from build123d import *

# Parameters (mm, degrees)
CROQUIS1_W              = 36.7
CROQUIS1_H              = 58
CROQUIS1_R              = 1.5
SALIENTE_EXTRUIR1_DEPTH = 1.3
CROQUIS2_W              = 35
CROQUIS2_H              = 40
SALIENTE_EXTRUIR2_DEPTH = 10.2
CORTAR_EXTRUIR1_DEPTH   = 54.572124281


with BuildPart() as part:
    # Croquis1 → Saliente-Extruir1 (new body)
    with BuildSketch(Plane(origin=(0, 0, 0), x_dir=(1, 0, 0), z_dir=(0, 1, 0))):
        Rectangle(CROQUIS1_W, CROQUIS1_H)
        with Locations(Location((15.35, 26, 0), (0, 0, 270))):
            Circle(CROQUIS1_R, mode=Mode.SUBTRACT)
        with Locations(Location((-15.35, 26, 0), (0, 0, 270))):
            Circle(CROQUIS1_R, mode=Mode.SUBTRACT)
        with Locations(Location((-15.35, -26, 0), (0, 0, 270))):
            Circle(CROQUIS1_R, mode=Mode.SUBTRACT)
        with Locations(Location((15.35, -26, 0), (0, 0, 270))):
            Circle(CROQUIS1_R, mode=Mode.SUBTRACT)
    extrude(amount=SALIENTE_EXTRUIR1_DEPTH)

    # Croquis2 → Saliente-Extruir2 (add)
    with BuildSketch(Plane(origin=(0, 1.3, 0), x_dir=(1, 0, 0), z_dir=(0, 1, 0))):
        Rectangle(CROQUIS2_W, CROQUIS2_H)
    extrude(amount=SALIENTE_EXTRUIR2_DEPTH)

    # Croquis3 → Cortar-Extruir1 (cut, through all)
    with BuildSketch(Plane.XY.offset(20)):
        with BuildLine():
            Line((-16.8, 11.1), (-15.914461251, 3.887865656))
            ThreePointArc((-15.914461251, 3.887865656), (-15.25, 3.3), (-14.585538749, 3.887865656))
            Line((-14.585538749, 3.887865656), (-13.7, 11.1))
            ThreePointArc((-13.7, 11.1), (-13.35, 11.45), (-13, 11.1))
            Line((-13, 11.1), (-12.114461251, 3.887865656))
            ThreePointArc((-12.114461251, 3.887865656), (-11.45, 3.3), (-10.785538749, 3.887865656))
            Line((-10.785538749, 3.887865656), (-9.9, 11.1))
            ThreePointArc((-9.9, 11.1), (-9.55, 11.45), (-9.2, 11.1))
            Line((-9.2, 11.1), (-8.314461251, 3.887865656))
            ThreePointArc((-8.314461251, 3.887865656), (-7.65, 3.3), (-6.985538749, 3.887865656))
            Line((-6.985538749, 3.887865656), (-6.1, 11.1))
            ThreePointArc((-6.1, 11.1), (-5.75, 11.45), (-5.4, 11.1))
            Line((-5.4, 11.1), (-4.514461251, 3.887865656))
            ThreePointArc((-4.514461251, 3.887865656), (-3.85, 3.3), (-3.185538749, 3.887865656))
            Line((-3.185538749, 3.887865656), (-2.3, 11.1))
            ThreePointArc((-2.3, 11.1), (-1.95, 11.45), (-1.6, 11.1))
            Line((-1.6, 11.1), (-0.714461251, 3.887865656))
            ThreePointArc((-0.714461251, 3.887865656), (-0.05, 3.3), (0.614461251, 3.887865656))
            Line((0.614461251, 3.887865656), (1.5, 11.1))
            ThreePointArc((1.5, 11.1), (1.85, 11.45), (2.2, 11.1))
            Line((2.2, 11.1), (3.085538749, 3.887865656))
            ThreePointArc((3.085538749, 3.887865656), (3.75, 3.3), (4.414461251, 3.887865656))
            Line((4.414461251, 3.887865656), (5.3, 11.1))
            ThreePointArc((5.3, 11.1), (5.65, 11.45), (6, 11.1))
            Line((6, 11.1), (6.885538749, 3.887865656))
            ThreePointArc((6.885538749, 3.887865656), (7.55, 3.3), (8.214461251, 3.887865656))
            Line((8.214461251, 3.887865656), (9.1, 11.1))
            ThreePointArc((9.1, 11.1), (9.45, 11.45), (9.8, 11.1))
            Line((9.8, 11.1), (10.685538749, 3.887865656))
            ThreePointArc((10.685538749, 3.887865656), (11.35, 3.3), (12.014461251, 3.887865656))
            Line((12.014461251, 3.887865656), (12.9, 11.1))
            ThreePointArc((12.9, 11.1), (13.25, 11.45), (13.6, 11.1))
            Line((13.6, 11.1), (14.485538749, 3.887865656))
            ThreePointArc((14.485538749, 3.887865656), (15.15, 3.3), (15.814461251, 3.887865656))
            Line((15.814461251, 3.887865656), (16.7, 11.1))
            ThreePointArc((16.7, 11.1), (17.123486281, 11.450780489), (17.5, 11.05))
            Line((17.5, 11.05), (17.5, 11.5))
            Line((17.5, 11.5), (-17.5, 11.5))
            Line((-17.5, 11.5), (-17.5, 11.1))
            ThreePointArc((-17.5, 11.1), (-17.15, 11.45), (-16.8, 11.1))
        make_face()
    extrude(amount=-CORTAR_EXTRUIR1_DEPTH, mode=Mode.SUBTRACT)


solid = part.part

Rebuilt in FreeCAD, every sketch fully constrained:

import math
import FreeCAD as App
import Part
import Sketcher
Q = App.Units.Quantity


def add_polygon(sketch, points):
    """Adds a closed chain of lines whose ends are joined by coincident constraints."""
    first, n = sketch.GeometryCount, len(points)
    for a, b in zip(points, points[1:] + points[:1]):
        sketch.addGeometry(Part.LineSegment(App.Vector(*a, 0), App.Vector(*b, 0)), False)
    for i in range(n):
        sketch.addConstraint(Sketcher.Constraint("Coincident", first + i, 2, first + (i + 1) % n, 1))

doc = App.newDocument("Part")
params = doc.addObject("Spreadsheet::Sheet", "Params")
for row, (alias, value) in enumerate([
    ("sketch1_diameter", "3 mm"),
    ("sketch1_height", "58 mm"),
    ("sketch1_width", "36.7 mm"),
    ("pad1_length", "1.3 mm"),
    ("sketch2_width", "35 mm"),
    ("sketch2_height", "40 mm"),
    ("pad2_length", "10.2 mm"),
    ("sketch3_width", "35 mm"),
    ("sketch3_radius", "0.35 mm"),
    ("sketch3_height", "0.4 mm"),
    ("sketch3_height2", "0.45 mm"),
], start=1):
    params.set(f"A{row}", alias)
    params.set(f"B{row}", "=" + value)
    params.setAlias(f"B{row}", alias)

body = doc.addObject("PartDesign::Body", "Body")

# Sketch on XZ plane
sketch1 = doc.addObject("Sketcher::SketchObject", "Sketch")
body.addObject(sketch1)
sketch1.AttachmentSupport = (doc.XZ_Plane, [""])
sketch1.MapMode = "FlatFace"
add_polygon(sketch1, [(-18.35, -29), (-18.35, 29), (18.35, 29), (18.35, -29)])  # lines 0-3
sketch1.addGeometry(Part.Circle(App.Vector(-15.35, 26, 0), App.Vector(0, 0, 1), 1.5), False)  # 4
sketch1.addGeometry(Part.Circle(App.Vector(15.35, 26, 0), App.Vector(0, 0, 1), 1.5), False)  # 5
sketch1.addGeometry(Part.Circle(App.Vector(-15.35, -26, 0), App.Vector(0, 0, 1), 1.5), False)  # 6
sketch1.addGeometry(Part.Circle(App.Vector(15.35, -26, 0), App.Vector(0, 0, 1), 1.5), False)  # 7
sketch1.addConstraint([
    Sketcher.Constraint("Vertical", 0),
    Sketcher.Constraint("Horizontal", 1),
    Sketcher.Constraint("Vertical", 2),
    Sketcher.Constraint("Horizontal", 3),
    Sketcher.Constraint("Equal", 4, 5),
    Sketcher.Constraint("Equal", 5, 6),
    Sketcher.Constraint("Equal", 6, 7),
    Sketcher.Constraint("Symmetric", 5, 3, 6, 3, -1, 1),
    Sketcher.Constraint("Symmetric", 4, 3, 7, 3, -1, 1),
    Sketcher.Constraint("Symmetric", 0, 2, 2, 2, -1, 1),
    Sketcher.Constraint("Symmetric", 4, 3, 5, 3, -2),
    Sketcher.Constraint("Diameter", 4, 3.0),
    Sketcher.Constraint("DistanceY", 0, 1, 0, 2, 58.0),
    Sketcher.Constraint("DistanceX", 1, 1, 1, 2, 36.7),
    Sketcher.Constraint("DistanceY", -1, 1, 4, 3, 26.0),
    Sketcher.Constraint("DistanceX", 0, 2, 4, 3, 3.0),
])
sketch1.setExpression("Constraints[15]", "Params.sketch1_diameter")
sketch1.setExpression("Constraints[16]", "Params.sketch1_height")
sketch1.setExpression("Constraints[17]", "Params.sketch1_width")
pad1 = doc.addObject("PartDesign::Pad", "Pad")
body.addObject(pad1)
pad1.Profile = sketch1
pad1.setExpression("Length", "Params.pad1_length")
pad1.Reversed = True

# Sketch on XZ plane
sketch2 = doc.addObject("Sketcher::SketchObject", "Sketch001")
body.addObject(sketch2)
sketch2.AttachmentSupport = (doc.XZ_Plane, [""])
sketch2.MapMode = "FlatFace"
sketch2.AttachmentOffset = App.Placement(App.Vector(0, 0, -1.3), App.Rotation())
add_polygon(sketch2, [(-17.5, -20), (-17.5, 20), (17.5, 20), (17.5, -20)])  # lines 0-3
sketch2.addConstraint([
    Sketcher.Constraint("Vertical", 0),
    Sketcher.Constraint("Horizontal", 1),
    Sketcher.Constraint("Vertical", 2),
    Sketcher.Constraint("Horizontal", 3),
    Sketcher.Constraint("Symmetric", 0, 2, 2, 2, -1, 1),
    Sketcher.Constraint("DistanceX", 1, 1, 1, 2, 35.0),
    Sketcher.Constraint("DistanceY", 0, 1, 0, 2, 40.0),
])
sketch2.setExpression("Constraints[9]", "Params.sketch2_width")
sketch2.setExpression("Constraints[10]", "Params.sketch2_height")
pad2 = doc.addObject("PartDesign::Pad", "Pad001")
body.addObject(pad2)
pad2.Profile = sketch2
pad2.setExpression("Length", "Params.pad2_length")
pad2.Reversed = True

# Sketch on XY plane
sketch3 = doc.addObject("Sketcher::SketchObject", "Sketch002")
body.addObject(sketch3)
sketch3.AttachmentSupport = (doc.XY_Plane, [""])
sketch3.MapMode = "FlatFace"
sketch3.AttachmentOffset = App.Placement(App.Vector(0, 0, 20), App.Rotation())
sketch3.addGeometry([
    Part.LineSegment(App.Vector(-16.8, 11.1, 0), App.Vector(-15.914461, 3.887866, 0)),  # 0
    Part.ArcOfCircle(Part.Circle(App.Vector(-15.25, 3.969451, 0), App.Vector(0, 0, 1), 0.669451), math.radians(-173), math.radians(-7)),  # 1
    Part.LineSegment(App.Vector(-14.585539, 3.887866, 0), App.Vector(-13.7, 11.1, 0)),  # 2
    Part.ArcOfCircle(Part.Circle(App.Vector(-13.35, 11.1, 0), App.Vector(0, 0, 1), 0.35), math.radians(0), math.radians(180)),  # 3
    Part.LineSegment(App.Vector(-13, 11.1, 0), App.Vector(-12.114461, 3.887866, 0)),  # 4
    Part.ArcOfCircle(Part.Circle(App.Vector(-11.45, 3.969451, 0), App.Vector(0, 0, 1), 0.669451), math.radians(-173), math.radians(-7)),  # 5
    Part.LineSegment(App.Vector(-10.785539, 3.887866, 0), App.Vector(-9.9, 11.1, 0)),  # 6
    Part.ArcOfCircle(Part.Circle(App.Vector(-9.55, 11.1, 0), App.Vector(0, 0, 1), 0.35), math.radians(0), math.radians(180)),  # 7
    Part.LineSegment(App.Vector(-9.2, 11.1, 0), App.Vector(-8.314461, 3.887866, 0)),  # 8
    Part.ArcOfCircle(Part.Circle(App.Vector(-7.65, 3.969451, 0), App.Vector(0, 0, 1), 0.669451), math.radians(-173), math.radians(-7)),  # 9
    Part.LineSegment(App.Vector(-6.985539, 3.887866, 0), App.Vector(-6.1, 11.1, 0)),  # 10
    Part.ArcOfCircle(Part.Circle(App.Vector(-5.75, 11.1, 0), App.Vector(0, 0, 1), 0.35), math.radians(0), math.radians(180)),  # 11
    Part.LineSegment(App.Vector(-5.4, 11.1, 0), App.Vector(-4.514461, 3.887866, 0)),  # 12
    Part.ArcOfCircle(Part.Circle(App.Vector(-3.85, 3.969451, 0), App.Vector(0, 0, 1), 0.669451), math.radians(-173), math.radians(-7)),  # 13
    Part.LineSegment(App.Vector(-3.185539, 3.887866, 0), App.Vector(-2.3, 11.1, 0)),  # 14
    Part.ArcOfCircle(Part.Circle(App.Vector(-1.95, 11.1, 0), App.Vector(0, 0, 1), 0.35), math.radians(0), math.radians(180)),  # 15
    Part.LineSegment(App.Vector(-1.6, 11.1, 0), App.Vector(-0.714461, 3.887866, 0)),  # 16
    Part.ArcOfCircle(Part.Circle(App.Vector(-0.05, 3.969451, 0), App.Vector(0, 0, 1), 0.669451), math.radians(-173), math.radians(-7)),  # 17
    Part.LineSegment(App.Vector(0.614461, 3.887866, 0), App.Vector(1.5, 11.1, 0)),  # 18
    Part.ArcOfCircle(Part.Circle(App.Vector(1.85, 11.1, 0), App.Vector(0, 0, 1), 0.35), math.radians(0), math.radians(180)),  # 19
    Part.LineSegment(App.Vector(2.2, 11.1, 0), App.Vector(3.085539, 3.887866, 0)),  # 20
    Part.ArcOfCircle(Part.Circle(App.Vector(3.75, 3.969451, 0), App.Vector(0, 0, 1), 0.669451), math.radians(-173), math.radians(-7)),  # 21
    Part.LineSegment(App.Vector(4.414461, 3.887866, 0), App.Vector(5.3, 11.1, 0)),  # 22
    Part.ArcOfCircle(Part.Circle(App.Vector(5.65, 11.1, 0), App.Vector(0, 0, 1), 0.35), math.radians(0), math.radians(180)),  # 23
    Part.LineSegment(App.Vector(6, 11.1, 0), App.Vector(6.885539, 3.887866, 0)),  # 24
    Part.ArcOfCircle(Part.Circle(App.Vector(7.55, 3.969451, 0), App.Vector(0, 0, 1), 0.669451), math.radians(-173), math.radians(-7)),  # 25
    Part.LineSegment(App.Vector(8.214461, 3.887866, 0), App.Vector(9.1, 11.1, 0)),  # 26
    Part.ArcOfCircle(Part.Circle(App.Vector(9.45, 11.1, 0), App.Vector(0, 0, 1), 0.35), math.radians(0), math.radians(180)),  # 27
    Part.LineSegment(App.Vector(9.8, 11.1, 0), App.Vector(10.685539, 3.887866, 0)),  # 28
    Part.ArcOfCircle(Part.Circle(App.Vector(11.35, 3.969451, 0), App.Vector(0, 0, 1), 0.669451), math.radians(-173), math.radians(-7)),  # 29
    Part.LineSegment(App.Vector(12.014461, 3.887866, 0), App.Vector(12.9, 11.1, 0)),  # 30
    Part.ArcOfCircle(Part.Circle(App.Vector(13.25, 11.1, 0), App.Vector(0, 0, 1), 0.35), math.radians(0), math.radians(180)),  # 31
    Part.LineSegment(App.Vector(13.6, 11.1, 0), App.Vector(14.485539, 3.887866, 0)),  # 32
    Part.ArcOfCircle(Part.Circle(App.Vector(15.15, 3.969451, 0), App.Vector(0, 0, 1), 0.669451), math.radians(-173), math.radians(-7)),  # 33
    Part.LineSegment(App.Vector(15.814461, 3.887866, 0), App.Vector(16.7, 11.1, 0)),  # 34
    Part.ArcOfCircle(Part.Circle(App.Vector(17.098437, 11.05, 0), App.Vector(0, 0, 1), 0.401562), math.radians(0), math.radians(172.847331)),  # 35
    Part.LineSegment(App.Vector(17.5, 11.05, 0), App.Vector(17.5, 11.5, 0)),  # 36
    Part.LineSegment(App.Vector(17.5, 11.5, 0), App.Vector(-17.5, 11.5, 0)),  # 37
    Part.LineSegment(App.Vector(-17.5, 11.5, 0), App.Vector(-17.5, 11.1, 0)),  # 38
    Part.ArcOfCircle(Part.Circle(App.Vector(-17.15, 11.1, 0), App.Vector(0, 0, 1), 0.35), math.radians(0), math.radians(180)),  # 39
], False)
sketch3.addConstraint([
    Sketcher.Constraint("Tangent", 0, 2, 1, 1),
    Sketcher.Constraint("Tangent", 1, 2, 2, 1),
    Sketcher.Constraint("Coincident", 2, 2, 3, 2),
    Sketcher.Constraint("Coincident", 3, 1, 4, 1),
    Sketcher.Constraint("Tangent", 4, 2, 5, 1),
    Sketcher.Constraint("Tangent", 5, 2, 6, 1),
    Sketcher.Constraint("Coincident", 6, 2, 7, 2),
    Sketcher.Constraint("Coincident", 7, 1, 8, 1),
    Sketcher.Constraint("Tangent", 8, 2, 9, 1),
    Sketcher.Constraint("Tangent", 9, 2, 10, 1),
    Sketcher.Constraint("Coincident", 10, 2, 11, 2),
    Sketcher.Constraint("Coincident", 11, 1, 12, 1),
    Sketcher.Constraint("Tangent", 12, 2, 13, 1),
    Sketcher.Constraint("Tangent", 13, 2, 14, 1),
    Sketcher.Constraint("Coincident", 14, 2, 15, 2),
    Sketcher.Constraint("Coincident", 15, 1, 16, 1),
    Sketcher.Constraint("Tangent", 16, 2, 17, 1),
    Sketcher.Constraint("Tangent", 17, 2, 18, 1),
    Sketcher.Constraint("Coincident", 18, 2, 19, 2),
    Sketcher.Constraint("Coincident", 19, 1, 20, 1),
    Sketcher.Constraint("Tangent", 20, 2, 21, 1),
    Sketcher.Constraint("Tangent", 21, 2, 22, 1),
    Sketcher.Constraint("Coincident", 22, 2, 23, 2),
    Sketcher.Constraint("Coincident", 23, 1, 24, 1),
    Sketcher.Constraint("Tangent", 24, 2, 25, 1),
    Sketcher.Constraint("Tangent", 25, 2, 26, 1),
    Sketcher.Constraint("Coincident", 26, 2, 27, 2),
    Sketcher.Constraint("Coincident", 27, 1, 28, 1),
    Sketcher.Constraint("Tangent", 28, 2, 29, 1),
    Sketcher.Constraint("Tangent", 29, 2, 30, 1),
    Sketcher.Constraint("Coincident", 30, 2, 31, 2),
    Sketcher.Constraint("Coincident", 31, 1, 32, 1),
    Sketcher.Constraint("Tangent", 32, 2, 33, 1),
    Sketcher.Constraint("Tangent", 33, 2, 34, 1),
    Sketcher.Constraint("Coincident", 34, 2, 35, 2),
    Sketcher.Constraint("Tangent", 35, 1, 36, 1),
    Sketcher.Constraint("Coincident", 36, 2, 37, 1),
    Sketcher.Constraint("Coincident", 37, 2, 38, 1),
    Sketcher.Constraint("Tangent", 38, 2, 39, 2),
    Sketcher.Constraint("Coincident", 39, 1, 0, 1),
    Sketcher.Constraint("Vertical", 36),
    Sketcher.Constraint("Horizontal", 37),
    Sketcher.Constraint("Vertical", 38),
    Sketcher.Constraint("Equal", 1, 5),
    Sketcher.Constraint("Equal", 3, 7),
    Sketcher.Constraint("Equal", 5, 9),
    Sketcher.Constraint("Equal", 7, 11),
    Sketcher.Constraint("Equal", 9, 13),
    Sketcher.Constraint("Equal", 11, 15),
    Sketcher.Constraint("Equal", 13, 17),
    Sketcher.Constraint("Equal", 15, 19),
    Sketcher.Constraint("Equal", 17, 21),
    Sketcher.Constraint("Equal", 19, 23),
    Sketcher.Constraint("Equal", 21, 25),
    Sketcher.Constraint("Equal", 23, 27),
    Sketcher.Constraint("Equal", 25, 29),
    Sketcher.Constraint("Equal", 27, 31),
    Sketcher.Constraint("Equal", 29, 33),
    Sketcher.Constraint("Equal", 31, 39),
    Sketcher.Constraint("Parallel", 0, 4),
    Sketcher.Constraint("Parallel", 2, 6),
    Sketcher.Constraint("Parallel", 4, 8),
    Sketcher.Constraint("Parallel", 6, 10),
    Sketcher.Constraint("Parallel", 8, 12),
    Sketcher.Constraint("Parallel", 10, 14),
    Sketcher.Constraint("Parallel", 12, 16),
    Sketcher.Constraint("Parallel", 14, 18),
    Sketcher.Constraint("Parallel", 16, 20),
    Sketcher.Constraint("Parallel", 18, 22),
    Sketcher.Constraint("Parallel", 20, 24),
    Sketcher.Constraint("Parallel", 22, 26),
    Sketcher.Constraint("Parallel", 24, 28),
    Sketcher.Constraint("Parallel", 26, 30),
    Sketcher.Constraint("Parallel", 28, 32),
    Sketcher.Constraint("Parallel", 30, 34),
    Sketcher.Constraint("Horizontal", 1, 3, 5, 3),
    Sketcher.Constraint("Horizontal", 3, 3, 7, 3),
    Sketcher.Constraint("Horizontal", 5, 3, 9, 3),
    Sketcher.Constraint("Horizontal", 7, 3, 11, 3),
    Sketcher.Constraint("Horizontal", 9, 3, 13, 3),
    Sketcher.Constraint("Horizontal", 11, 3, 15, 3),
    Sketcher.Constraint("Horizontal", 13, 3, 17, 3),
    Sketcher.Constraint("Horizontal", 15, 3, 19, 3),
    Sketcher.Constraint("Horizontal", 17, 3, 21, 3),
    Sketcher.Constraint("Horizontal", 19, 3, 23, 3),
    Sketcher.Constraint("Horizontal", 21, 3, 25, 3),
    Sketcher.Constraint("Horizontal", 23, 3, 27, 3),
    Sketcher.Constraint("Horizontal", 25, 3, 29, 3),
    Sketcher.Constraint("Horizontal", 27, 3, 31, 3),
    Sketcher.Constraint("Horizontal", 29, 3, 33, 3),
    Sketcher.Constraint("Horizontal", 31, 3, 39, 3),
    Sketcher.Constraint("Horizontal", 0, 2, 1, 2),
    Sketcher.Constraint("Horizontal", 39, 3, 2, 2),
    Sketcher.Constraint("Horizontal", 2, 2, 3, 1),
    Sketcher.Constraint("Horizontal", 3, 1, 6, 2),
    Sketcher.Constraint("Horizontal", 6, 2, 7, 1),
    Sketcher.Constraint("Horizontal", 7, 1, 10, 2),
    Sketcher.Constraint("Horizontal", 10, 2, 11, 1),
    Sketcher.Constraint("Horizontal", 11, 1, 14, 2),
    Sketcher.Constraint("Horizontal", 14, 2, 15, 1),
    Sketcher.Constraint("Horizontal", 15, 1, 18, 2),
    Sketcher.Constraint("Horizontal", 18, 2, 19, 1),
    Sketcher.Constraint("Horizontal", 19, 1, 22, 2),
    Sketcher.Constraint("Horizontal", 22, 2, 23, 1),
    Sketcher.Constraint("Horizontal", 23, 1, 26, 2),
    Sketcher.Constraint("Horizontal", 26, 2, 27, 1),
    Sketcher.Constraint("Horizontal", 27, 1, 30, 2),
    Sketcher.Constraint("Horizontal", 30, 2, 31, 1),
    Sketcher.Constraint("Horizontal", 31, 1, 34, 2),
    Sketcher.Constraint("Horizontal", 38, 2, 39, 1),
    Sketcher.Constraint("DistanceX", 37, 2, 37, 1, 35.0),
    Sketcher.Constraint("Angle", 0, Q("-83 deg")),
    Sketcher.Constraint("Radius", 3, 0.35),
    Sketcher.Constraint("DistanceY", 38, 2, 38, 1, 0.4),
    Sketcher.Constraint("DistanceX", 3, 1, -1, 1, 13.0),
    Sketcher.Constraint("DistanceX", -1, 1, 23, 1, 6.0),
    Sketcher.Constraint("DistanceY", 36, 1, 36, 2, 0.45),
    Sketcher.Constraint("DistanceY", -1, 1, 3, 3, 11.1),
    Sketcher.Constraint("Radius", 1, 0.669451),
])
sketch3.setExpression("Constraints[110]", "Params.sketch3_width")
sketch3.setExpression("Constraints[112]", "Params.sketch3_radius")
sketch3.setExpression("Constraints[113]", "Params.sketch3_height")
sketch3.setExpression("Constraints[116]", "Params.sketch3_height2")
pocket1 = doc.addObject("PartDesign::Pocket", "Pocket")
body.addObject(pocket1)
pocket1.Profile = sketch3
pocket1.Type = "ThroughAll"

doc.recompute()
